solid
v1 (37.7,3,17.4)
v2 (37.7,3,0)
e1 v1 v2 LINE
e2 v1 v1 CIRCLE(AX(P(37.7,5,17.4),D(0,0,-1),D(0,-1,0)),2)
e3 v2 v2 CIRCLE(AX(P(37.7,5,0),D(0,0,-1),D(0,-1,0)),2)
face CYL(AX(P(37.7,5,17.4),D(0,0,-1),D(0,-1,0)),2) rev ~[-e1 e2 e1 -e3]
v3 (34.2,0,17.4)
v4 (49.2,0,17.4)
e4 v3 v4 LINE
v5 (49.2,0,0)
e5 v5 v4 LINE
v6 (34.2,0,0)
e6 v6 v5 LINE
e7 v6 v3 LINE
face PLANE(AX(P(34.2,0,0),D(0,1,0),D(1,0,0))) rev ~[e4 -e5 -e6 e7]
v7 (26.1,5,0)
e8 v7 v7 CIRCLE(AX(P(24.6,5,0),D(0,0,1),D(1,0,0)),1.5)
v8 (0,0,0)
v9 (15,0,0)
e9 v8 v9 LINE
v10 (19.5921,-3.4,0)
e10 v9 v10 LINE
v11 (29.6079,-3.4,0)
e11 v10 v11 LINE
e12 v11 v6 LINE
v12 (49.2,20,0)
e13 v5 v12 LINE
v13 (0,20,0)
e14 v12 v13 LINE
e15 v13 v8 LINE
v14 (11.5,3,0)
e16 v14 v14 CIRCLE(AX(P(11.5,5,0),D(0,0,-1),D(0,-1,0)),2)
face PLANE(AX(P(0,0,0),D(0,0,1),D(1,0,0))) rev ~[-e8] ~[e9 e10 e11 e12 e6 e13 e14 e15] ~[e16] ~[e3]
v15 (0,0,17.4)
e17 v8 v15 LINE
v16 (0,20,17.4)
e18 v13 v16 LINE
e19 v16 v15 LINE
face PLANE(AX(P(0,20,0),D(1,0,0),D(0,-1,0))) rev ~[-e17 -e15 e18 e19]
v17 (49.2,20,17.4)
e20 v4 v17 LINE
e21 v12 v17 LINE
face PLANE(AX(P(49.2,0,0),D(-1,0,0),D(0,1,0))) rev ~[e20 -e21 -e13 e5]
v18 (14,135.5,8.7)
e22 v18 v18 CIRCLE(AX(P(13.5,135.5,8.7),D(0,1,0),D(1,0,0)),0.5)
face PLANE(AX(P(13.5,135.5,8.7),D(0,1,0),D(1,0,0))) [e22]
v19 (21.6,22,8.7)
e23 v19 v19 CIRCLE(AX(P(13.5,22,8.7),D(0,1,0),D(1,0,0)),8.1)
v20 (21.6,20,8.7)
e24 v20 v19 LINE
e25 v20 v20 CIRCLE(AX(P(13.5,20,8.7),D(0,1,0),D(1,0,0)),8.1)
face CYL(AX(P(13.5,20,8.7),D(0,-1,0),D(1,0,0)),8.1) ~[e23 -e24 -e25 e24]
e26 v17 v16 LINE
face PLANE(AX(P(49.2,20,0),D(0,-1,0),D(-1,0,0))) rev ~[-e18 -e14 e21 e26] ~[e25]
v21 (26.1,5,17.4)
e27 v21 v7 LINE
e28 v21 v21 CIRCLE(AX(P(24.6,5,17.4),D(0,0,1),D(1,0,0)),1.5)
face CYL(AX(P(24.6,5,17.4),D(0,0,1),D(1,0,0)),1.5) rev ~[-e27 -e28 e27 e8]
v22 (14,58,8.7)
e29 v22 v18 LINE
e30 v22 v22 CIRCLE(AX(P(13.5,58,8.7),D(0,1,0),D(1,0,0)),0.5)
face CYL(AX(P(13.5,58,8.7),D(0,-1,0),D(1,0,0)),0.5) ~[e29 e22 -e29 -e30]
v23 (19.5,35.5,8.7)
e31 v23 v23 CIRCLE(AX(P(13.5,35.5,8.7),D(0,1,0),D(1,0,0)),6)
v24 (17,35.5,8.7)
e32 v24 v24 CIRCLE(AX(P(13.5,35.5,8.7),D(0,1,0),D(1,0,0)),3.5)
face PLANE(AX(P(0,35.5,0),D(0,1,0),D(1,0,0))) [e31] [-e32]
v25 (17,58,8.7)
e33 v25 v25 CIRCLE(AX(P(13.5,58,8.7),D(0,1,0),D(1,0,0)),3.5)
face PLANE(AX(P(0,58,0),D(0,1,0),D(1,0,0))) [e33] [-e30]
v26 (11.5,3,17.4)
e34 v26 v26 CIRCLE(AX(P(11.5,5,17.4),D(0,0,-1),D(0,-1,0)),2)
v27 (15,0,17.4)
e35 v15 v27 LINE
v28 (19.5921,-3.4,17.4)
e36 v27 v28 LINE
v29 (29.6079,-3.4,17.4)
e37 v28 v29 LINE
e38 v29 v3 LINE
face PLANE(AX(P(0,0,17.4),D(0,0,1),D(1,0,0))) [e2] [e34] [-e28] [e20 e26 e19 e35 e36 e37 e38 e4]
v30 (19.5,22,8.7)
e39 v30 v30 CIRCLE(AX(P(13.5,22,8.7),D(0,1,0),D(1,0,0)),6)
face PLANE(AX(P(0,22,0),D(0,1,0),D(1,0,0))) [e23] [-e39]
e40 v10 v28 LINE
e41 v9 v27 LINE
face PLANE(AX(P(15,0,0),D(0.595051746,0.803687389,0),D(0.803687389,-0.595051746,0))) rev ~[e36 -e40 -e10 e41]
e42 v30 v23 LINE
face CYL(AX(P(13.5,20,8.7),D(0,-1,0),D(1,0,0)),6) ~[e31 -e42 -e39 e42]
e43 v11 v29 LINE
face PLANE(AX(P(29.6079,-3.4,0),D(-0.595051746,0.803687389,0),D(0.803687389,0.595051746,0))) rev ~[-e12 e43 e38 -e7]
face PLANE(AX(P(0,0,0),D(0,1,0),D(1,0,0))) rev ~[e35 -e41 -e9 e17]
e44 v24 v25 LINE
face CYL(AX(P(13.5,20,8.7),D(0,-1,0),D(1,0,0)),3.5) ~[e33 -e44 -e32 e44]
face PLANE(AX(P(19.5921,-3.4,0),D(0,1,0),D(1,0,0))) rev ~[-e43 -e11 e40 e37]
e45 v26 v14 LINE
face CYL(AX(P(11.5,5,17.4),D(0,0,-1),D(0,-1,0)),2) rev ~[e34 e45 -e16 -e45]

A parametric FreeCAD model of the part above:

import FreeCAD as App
import Part
import Sketcher
Q = App.Units.Quantity


def add_polygon(sketch, points):
    """Adds a closed chain of lines whose ends are joined by coincident constraints."""
    first, n = sketch.GeometryCount, len(points)
    for a, b in zip(points, points[1:] + points[:1]):
        sketch.addGeometry(Part.LineSegment(App.Vector(*a, 0), App.Vector(*b, 0)), False)
    for i in range(n):
        sketch.addConstraint(Sketcher.Constraint("Coincident", first + i, 2, first + (i + 1) % n, 1))

doc = App.newDocument("Part")
body = doc.addObject("PartDesign::Body", "Body")

sketch1 = doc.addObject("Sketcher::SketchObject", "Sketch")
body.addObject(sketch1)
sketch1.AttachmentSupport = (doc.XY_Plane, [""])
sketch1.MapMode = "FlatFace"
add_polygon(sketch1, [(0, 20), (0, 0), (15, 0), (20, -3), (30, -3), (34, 0), (49, 0), (49, 20)])
sketch1.addConstraint(Sketcher.Constraint("Vertical", 0))
sketch1.addConstraint(Sketcher.Constraint("Horizontal", 1))
sketch1.addConstraint(Sketcher.Constraint("Horizontal", 3))
sketch1.addConstraint(Sketcher.Constraint("Horizontal", 5))
sketch1.addConstraint(Sketcher.Constraint("Vertical", 6))
sketch1.addConstraint(Sketcher.Constraint("Horizontal", 7))
sketch1.addConstraint(Sketcher.Constraint("Coincident", 0, 2, -1, 1))
sketch1.addConstraint(Sketcher.Constraint("PointOnObject", 4, 2, -1))
sketch1.addConstraint(Sketcher.Constraint("Equal", 1, 5))
sketch1.addConstraint(Sketcher.Constraint("Equal", 2, 4))
sketch1.addConstraint(Sketcher.Constraint("DistanceX", 1, 1, 1, 2, Q("15 mm")))
sketch1.addConstraint(Sketcher.Constraint("DistanceY", 0, 2, 0, 1, Q("20 mm")))
sketch1.addConstraint(Sketcher.Constraint("DistanceX", 7, 2, 7, 1, Q("49.2 mm")))
sketch1.addConstraint(Sketcher.Constraint("DistanceY", 2, 2, -1, 1, Q("3.4 mm")))
sketch1.addConstraint(Sketcher.Constraint("DistanceX", 3, 1, 3, 2, Q("10.0158 mm")))
pad1 = doc.addObject("PartDesign::Pad", "Pad")
body.addObject(pad1)
pad1.Profile = sketch1
pad1.Length = 17.4

sketch2 = doc.addObject("Sketcher::SketchObject", "Sketch001")
body.addObject(sketch2)
sketch2.AttachmentSupport = (doc.XZ_Plane, [""])
sketch2.MapMode = "FlatFace"
sketch2.AttachmentOffset = App.Placement(App.Vector(0, 0, -20), App.Rotation())
sketch2.addGeometry(Part.Circle(App.Vector(14, 9, 0), App.Vector(0, 0, 1), 8), False)
sketch2.addGeometry(Part.Circle(App.Vector(14, 9, 0), App.Vector(0, 0, 1), 6), False)
sketch2.addConstraint(Sketcher.Constraint("Coincident", 1, 3, 0, 3))
sketch2.addConstraint(Sketcher.Constraint("Diameter", 1, Q("12 mm")))
sketch2.addConstraint(Sketcher.Constraint("Diameter", 0, Q("16.2 mm")))
sketch2.addConstraint(Sketcher.Constraint("DistanceX", -1, 1, 0, 3, Q("13.5 mm")))
sketch2.addConstraint(Sketcher.Constraint("DistanceY", -1, 1, 0, 3, Q("8.7 mm")))
pad2 = doc.addObject("PartDesign::Pad", "Pad001")
body.addObject(pad2)
pad2.Profile = sketch2
pad2.Length = 2
pad2.Reversed = True

sketch3 = doc.addObject("Sketcher::SketchObject", "Sketch002")
body.addObject(sketch3)
sketch3.AttachmentSupport = (doc.XZ_Plane, [""])
sketch3.MapMode = "FlatFace"
sketch3.AttachmentOffset = App.Placement(App.Vector(0, 0, -20), App.Rotation())
sketch3.addGeometry(Part.Circle(App.Vector(13.5, 8.7, 0), App.Vector(0, 0, 1), 6), False)
sketch3.addGeometry(Part.Circle(App.Vector(13.5, 8.7, 0), App.Vector(0, 0, 1), 3.5), False)
sketch3.addConstraint(Sketcher.Constraint("Coincident", 1, 3, 0, 3))
sketch3.addConstraint(Sketcher.Constraint("Diameter", 0, Q("12 mm")))
sketch3.addConstraint(Sketcher.Constraint("Diameter", 1, Q("7 mm")))
sketch3.addConstraint(Sketcher.Constraint("DistanceX", -1, 1, 0, 3, Q("13.5 mm")))
sketch3.addConstraint(Sketcher.Constraint("DistanceY", -1, 1, 0, 3, Q("8.7 mm")))
pad3 = doc.addObject("PartDesign::Pad", "Pad002")
body.addObject(pad3)
pad3.Profile = sketch3
pad3.Length = 15.5
pad3.Reversed = True

sketch4 = doc.addObject("Sketcher::SketchObject", "Sketch003")
body.addObject(sketch4)
sketch4.AttachmentSupport = (doc.XZ_Plane, [""])
sketch4.MapMode = "FlatFace"
sketch4.AttachmentOffset = App.Placement(App.Vector(0, 0, -20), App.Rotation())
sketch4.addGeometry(Part.Circle(App.Vector(13.5, 8.7, 0), App.Vector(0, 0, 1), 3.5), False)
sketch4.addConstraint(Sketcher.Constraint("Diameter", 0, Q("7 mm")))
sketch4.addConstraint(Sketcher.Constraint("DistanceX", -1, 1, 0, 3, Q("13.5 mm")))
sketch4.addConstraint(Sketcher.Constraint("DistanceY", -1, 1, 0, 3, Q("8.7 mm")))
pad4 = doc.addObject("PartDesign::Pad", "Pad003")
body.addObject(pad4)
pad4.Profile = sketch4
pad4.Length = 38
pad4.Reversed = True

sketch5 = doc.addObject("Sketcher::SketchObject", "Sketch004")
body.addObject(sketch5)
sketch5.AttachmentSupport = (doc.XZ_Plane, [""])
sketch5.MapMode = "FlatFace"
sketch5.AttachmentOffset = App.Placement(App.Vector(0, 0, -58), App.Rotation())
sketch5.addGeometry(Part.Circle(App.Vector(13.5, 8.7, 0), App.Vector(0, 0, 1), 0.5), False)
sketch5.addConstraint(Sketcher.Constraint("Diameter", 0, Q("1 mm")))
sketch5.addConstraint(Sketcher.Constraint("DistanceX", -1, 1, 0, 3, Q("13.5 mm")))
sketch5.addConstraint(Sketcher.Constraint("DistanceY", -1, 1, 0, 3, Q("8.7 mm")))
pad5 = doc.addObject("PartDesign::Pad", "Pad004")
body.addObject(pad5)
pad5.Profile = sketch5
pad5.Length = 77.5
pad5.Reversed = True

sketch6 = doc.addObject("Sketcher::SketchObject", "Sketch005")
body.addObject(sketch6)
sketch6.AttachmentSupport = (doc.XY_Plane, [""])
sketch6.MapMode = "FlatFace"
sketch6.AttachmentOffset = App.Placement(App.Vector(0, 0, 17.4), App.Rotation())
sketch6.addGeometry(Part.Circle(App.Vector(11.5, 5, 0), App.Vector(0, 0, 1), 2), False)
sketch6.addGeometry(Part.Circle(App.Vector(37.7, 5, 0), App.Vector(0, 0, 1), 2), False)
sketch6.addConstraint(Sketcher.Constraint("Equal", 0, 1))
sketch6.addConstraint(Sketcher.Constraint("Horizontal", 0, 3, 1, 3))
sketch6.addConstraint(Sketcher.Constraint("Diameter", 0, Q("4 mm")))
sketch6.addConstraint(Sketcher.Constraint("DistanceY", -1, 1, 0, 3, Q("5 mm")))
sketch6.addConstraint(Sketcher.Constraint("DistanceX", -1, 1, 0, 3, Q("11.5 mm")))
sketch6.addConstraint(Sketcher.Constraint("DistanceX", -1, 1, 1, 3, Q("37.7 mm")))
doc.recompute()
hole = doc.addObject("PartDesign::Hole", "Hole")
body.addObject(hole)
hole.Profile = sketch6
hole.ThreadType = "None"
hole.Diameter = 4
hole.DepthType = "ThroughAll"

sketch7 = doc.addObject("Sketcher::SketchObject", "Sketch006")
body.addObject(sketch7)
sketch7.AttachmentSupport = (doc.XY_Plane, [""])
sketch7.MapMode = "FlatFace"
sketch7.AttachmentOffset = App.Placement(App.Vector(0, 0, 17.4), App.Rotation())
sketch7.addGeometry(Part.Circle(App.Vector(24.6, 5, 0), App.Vector(0, 0, 1), 1.5), False)
sketch7.addConstraint(Sketcher.Constraint("Diameter", 0, Q("3 mm")))
sketch7.addConstraint(Sketcher.Constraint("DistanceY", -1, 1, 0, 3, Q("5 mm")))
sketch7.addConstraint(Sketcher.Constraint("DistanceX", -1, 1, 0, 3, Q("24.6 mm")))
pocket1 = doc.addObject("PartDesign::Pocket", "Pocket")
body.addObject(pocket1)
pocket1.Profile = sketch7
pocket1.Length = 40

doc.recompute()
